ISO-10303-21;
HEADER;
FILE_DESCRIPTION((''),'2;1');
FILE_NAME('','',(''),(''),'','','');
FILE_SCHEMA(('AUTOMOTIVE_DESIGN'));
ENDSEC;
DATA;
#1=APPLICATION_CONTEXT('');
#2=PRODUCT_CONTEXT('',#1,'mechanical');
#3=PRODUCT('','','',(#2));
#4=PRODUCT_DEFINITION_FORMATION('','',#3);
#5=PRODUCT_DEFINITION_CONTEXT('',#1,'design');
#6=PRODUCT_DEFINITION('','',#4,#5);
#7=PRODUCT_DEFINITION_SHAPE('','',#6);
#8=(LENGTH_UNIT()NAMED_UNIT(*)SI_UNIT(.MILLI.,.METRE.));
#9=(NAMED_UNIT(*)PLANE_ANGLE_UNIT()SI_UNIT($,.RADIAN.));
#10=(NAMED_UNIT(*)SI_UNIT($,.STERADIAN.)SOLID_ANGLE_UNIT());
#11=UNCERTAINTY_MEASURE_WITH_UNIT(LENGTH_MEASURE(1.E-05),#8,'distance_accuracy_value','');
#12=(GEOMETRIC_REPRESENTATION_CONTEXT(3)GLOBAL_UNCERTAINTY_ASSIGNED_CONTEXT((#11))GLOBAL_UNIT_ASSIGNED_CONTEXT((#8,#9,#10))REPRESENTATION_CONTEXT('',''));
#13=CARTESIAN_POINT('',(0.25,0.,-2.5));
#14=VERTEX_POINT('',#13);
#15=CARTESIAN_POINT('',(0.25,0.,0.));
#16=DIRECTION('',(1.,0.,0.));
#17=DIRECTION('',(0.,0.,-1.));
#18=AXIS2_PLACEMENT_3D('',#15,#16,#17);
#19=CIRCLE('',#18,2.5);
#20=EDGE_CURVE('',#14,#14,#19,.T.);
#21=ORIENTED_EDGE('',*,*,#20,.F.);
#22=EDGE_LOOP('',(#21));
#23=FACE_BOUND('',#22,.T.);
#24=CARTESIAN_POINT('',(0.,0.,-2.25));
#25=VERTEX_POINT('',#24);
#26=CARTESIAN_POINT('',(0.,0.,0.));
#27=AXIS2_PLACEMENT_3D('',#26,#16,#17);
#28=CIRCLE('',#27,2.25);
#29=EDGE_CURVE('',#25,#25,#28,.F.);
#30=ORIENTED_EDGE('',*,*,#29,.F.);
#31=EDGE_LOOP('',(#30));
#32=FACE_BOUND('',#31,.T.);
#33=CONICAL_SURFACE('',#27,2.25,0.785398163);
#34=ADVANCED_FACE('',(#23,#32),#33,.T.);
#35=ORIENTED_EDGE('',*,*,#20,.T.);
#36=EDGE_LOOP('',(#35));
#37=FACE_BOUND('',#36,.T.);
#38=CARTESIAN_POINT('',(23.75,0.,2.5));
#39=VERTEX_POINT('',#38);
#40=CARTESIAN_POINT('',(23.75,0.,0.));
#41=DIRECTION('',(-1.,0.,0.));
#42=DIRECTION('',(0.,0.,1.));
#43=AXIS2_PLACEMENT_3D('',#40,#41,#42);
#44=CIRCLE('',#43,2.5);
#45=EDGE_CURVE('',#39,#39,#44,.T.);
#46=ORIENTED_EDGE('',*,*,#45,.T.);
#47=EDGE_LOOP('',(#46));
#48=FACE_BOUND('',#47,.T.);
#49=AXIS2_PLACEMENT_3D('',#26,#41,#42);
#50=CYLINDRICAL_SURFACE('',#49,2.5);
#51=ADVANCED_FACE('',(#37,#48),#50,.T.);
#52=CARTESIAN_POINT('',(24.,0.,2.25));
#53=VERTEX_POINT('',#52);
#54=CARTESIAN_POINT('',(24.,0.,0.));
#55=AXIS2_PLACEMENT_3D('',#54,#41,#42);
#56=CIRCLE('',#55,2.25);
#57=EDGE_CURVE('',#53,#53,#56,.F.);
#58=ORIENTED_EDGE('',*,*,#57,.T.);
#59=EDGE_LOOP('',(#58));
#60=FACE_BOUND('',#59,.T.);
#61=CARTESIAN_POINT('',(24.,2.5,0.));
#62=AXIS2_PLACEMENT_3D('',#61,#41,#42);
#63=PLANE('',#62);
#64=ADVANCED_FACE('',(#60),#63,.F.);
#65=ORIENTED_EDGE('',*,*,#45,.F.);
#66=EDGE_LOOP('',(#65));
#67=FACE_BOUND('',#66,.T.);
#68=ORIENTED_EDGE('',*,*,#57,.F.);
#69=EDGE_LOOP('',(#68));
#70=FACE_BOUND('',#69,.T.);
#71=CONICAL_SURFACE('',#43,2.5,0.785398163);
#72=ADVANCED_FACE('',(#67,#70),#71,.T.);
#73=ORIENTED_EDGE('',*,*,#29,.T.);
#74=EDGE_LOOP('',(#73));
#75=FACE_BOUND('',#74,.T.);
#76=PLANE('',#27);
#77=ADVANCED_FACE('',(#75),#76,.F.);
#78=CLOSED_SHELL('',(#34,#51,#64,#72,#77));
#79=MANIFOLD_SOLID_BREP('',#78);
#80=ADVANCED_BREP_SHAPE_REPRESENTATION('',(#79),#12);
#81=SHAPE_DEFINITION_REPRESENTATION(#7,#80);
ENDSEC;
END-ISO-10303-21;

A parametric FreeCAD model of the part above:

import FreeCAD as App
import Part
import Sketcher
Q = App.Units.Quantity


def edges_at(feature, points):
    """Names of the edges that pass closest to the given points."""
    edges = feature.Shape.Edges
    near = lambda p: min(range(len(edges)), key=lambda i: edges[i].distToShape(Part.Vertex(*p))[0])
    return sorted({f"Edge{near(p) + 1}" for p in points})

doc = App.newDocument("Part")
body = doc.addObject("PartDesign::Body", "Body")

# Sketch on XY plane
sketch1 = body.newObject("Sketcher::SketchObject", "Sketch")
sketch1.AttachmentSupport = (doc.getObject("XY_Plane"), [""])
sketch1.MapMode = "FlatFace"
sketch1.addGeometry(Part.LineSegment(App.Vector(0, 2.5, 0), App.Vector(0, 0, 0)), False)
sketch1.addGeometry(Part.LineSegment(App.Vector(0, 0, 0), App.Vector(24, 0, 0)), False)
sketch1.addGeometry(Part.LineSegment(App.Vector(24, 0, 0), App.Vector(24, 2.5, 0)), False)
sketch1.addGeometry(Part.LineSegment(App.Vector(24, 2.5, 0), App.Vector(0, 2.5, 0)), False)
sketch1.addConstraint(Sketcher.Constraint("Coincident", 0, 2, 1, 1))
sketch1.addConstraint(Sketcher.Constraint("Coincident", 1, 2, 2, 1))
sketch1.addConstraint(Sketcher.Constraint("Coincident", 2, 2, 3, 1))
sketch1.addConstraint(Sketcher.Constraint("Coincident", 3, 2, 0, 1))
sketch1.addConstraint(Sketcher.Constraint("Vertical", 0))
sketch1.addConstraint(Sketcher.Constraint("Horizontal", 1))
sketch1.addConstraint(Sketcher.Constraint("Vertical", 2))
sketch1.addConstraint(Sketcher.Constraint("Horizontal", 3))
sketch1.addConstraint(Sketcher.Constraint("Coincident", 0, 2, -1, 1))
sketch1.addConstraint(Sketcher.Constraint("DistanceX", 1, 1, 1, 2, Q("24 mm")))
sketch1.addConstraint(Sketcher.Constraint("DistanceY", 0, 2, 0, 1, Q("2.5 mm")))
revolution = body.newObject("PartDesign::Revolution", "Revolution")
revolution.Profile = sketch1
revolution.ReferenceAxis = (sketch1, ["H_Axis"])
revolution.Angle = 360
doc.recompute()

chamfer = body.newObject("PartDesign::Chamfer", "Chamfer")
chamfer.Base = (revolution, edges_at(revolution, [(24, -2.5, 0), (0, -2.5, 0)]))
chamfer.Size = 0.25

doc.recompute()
